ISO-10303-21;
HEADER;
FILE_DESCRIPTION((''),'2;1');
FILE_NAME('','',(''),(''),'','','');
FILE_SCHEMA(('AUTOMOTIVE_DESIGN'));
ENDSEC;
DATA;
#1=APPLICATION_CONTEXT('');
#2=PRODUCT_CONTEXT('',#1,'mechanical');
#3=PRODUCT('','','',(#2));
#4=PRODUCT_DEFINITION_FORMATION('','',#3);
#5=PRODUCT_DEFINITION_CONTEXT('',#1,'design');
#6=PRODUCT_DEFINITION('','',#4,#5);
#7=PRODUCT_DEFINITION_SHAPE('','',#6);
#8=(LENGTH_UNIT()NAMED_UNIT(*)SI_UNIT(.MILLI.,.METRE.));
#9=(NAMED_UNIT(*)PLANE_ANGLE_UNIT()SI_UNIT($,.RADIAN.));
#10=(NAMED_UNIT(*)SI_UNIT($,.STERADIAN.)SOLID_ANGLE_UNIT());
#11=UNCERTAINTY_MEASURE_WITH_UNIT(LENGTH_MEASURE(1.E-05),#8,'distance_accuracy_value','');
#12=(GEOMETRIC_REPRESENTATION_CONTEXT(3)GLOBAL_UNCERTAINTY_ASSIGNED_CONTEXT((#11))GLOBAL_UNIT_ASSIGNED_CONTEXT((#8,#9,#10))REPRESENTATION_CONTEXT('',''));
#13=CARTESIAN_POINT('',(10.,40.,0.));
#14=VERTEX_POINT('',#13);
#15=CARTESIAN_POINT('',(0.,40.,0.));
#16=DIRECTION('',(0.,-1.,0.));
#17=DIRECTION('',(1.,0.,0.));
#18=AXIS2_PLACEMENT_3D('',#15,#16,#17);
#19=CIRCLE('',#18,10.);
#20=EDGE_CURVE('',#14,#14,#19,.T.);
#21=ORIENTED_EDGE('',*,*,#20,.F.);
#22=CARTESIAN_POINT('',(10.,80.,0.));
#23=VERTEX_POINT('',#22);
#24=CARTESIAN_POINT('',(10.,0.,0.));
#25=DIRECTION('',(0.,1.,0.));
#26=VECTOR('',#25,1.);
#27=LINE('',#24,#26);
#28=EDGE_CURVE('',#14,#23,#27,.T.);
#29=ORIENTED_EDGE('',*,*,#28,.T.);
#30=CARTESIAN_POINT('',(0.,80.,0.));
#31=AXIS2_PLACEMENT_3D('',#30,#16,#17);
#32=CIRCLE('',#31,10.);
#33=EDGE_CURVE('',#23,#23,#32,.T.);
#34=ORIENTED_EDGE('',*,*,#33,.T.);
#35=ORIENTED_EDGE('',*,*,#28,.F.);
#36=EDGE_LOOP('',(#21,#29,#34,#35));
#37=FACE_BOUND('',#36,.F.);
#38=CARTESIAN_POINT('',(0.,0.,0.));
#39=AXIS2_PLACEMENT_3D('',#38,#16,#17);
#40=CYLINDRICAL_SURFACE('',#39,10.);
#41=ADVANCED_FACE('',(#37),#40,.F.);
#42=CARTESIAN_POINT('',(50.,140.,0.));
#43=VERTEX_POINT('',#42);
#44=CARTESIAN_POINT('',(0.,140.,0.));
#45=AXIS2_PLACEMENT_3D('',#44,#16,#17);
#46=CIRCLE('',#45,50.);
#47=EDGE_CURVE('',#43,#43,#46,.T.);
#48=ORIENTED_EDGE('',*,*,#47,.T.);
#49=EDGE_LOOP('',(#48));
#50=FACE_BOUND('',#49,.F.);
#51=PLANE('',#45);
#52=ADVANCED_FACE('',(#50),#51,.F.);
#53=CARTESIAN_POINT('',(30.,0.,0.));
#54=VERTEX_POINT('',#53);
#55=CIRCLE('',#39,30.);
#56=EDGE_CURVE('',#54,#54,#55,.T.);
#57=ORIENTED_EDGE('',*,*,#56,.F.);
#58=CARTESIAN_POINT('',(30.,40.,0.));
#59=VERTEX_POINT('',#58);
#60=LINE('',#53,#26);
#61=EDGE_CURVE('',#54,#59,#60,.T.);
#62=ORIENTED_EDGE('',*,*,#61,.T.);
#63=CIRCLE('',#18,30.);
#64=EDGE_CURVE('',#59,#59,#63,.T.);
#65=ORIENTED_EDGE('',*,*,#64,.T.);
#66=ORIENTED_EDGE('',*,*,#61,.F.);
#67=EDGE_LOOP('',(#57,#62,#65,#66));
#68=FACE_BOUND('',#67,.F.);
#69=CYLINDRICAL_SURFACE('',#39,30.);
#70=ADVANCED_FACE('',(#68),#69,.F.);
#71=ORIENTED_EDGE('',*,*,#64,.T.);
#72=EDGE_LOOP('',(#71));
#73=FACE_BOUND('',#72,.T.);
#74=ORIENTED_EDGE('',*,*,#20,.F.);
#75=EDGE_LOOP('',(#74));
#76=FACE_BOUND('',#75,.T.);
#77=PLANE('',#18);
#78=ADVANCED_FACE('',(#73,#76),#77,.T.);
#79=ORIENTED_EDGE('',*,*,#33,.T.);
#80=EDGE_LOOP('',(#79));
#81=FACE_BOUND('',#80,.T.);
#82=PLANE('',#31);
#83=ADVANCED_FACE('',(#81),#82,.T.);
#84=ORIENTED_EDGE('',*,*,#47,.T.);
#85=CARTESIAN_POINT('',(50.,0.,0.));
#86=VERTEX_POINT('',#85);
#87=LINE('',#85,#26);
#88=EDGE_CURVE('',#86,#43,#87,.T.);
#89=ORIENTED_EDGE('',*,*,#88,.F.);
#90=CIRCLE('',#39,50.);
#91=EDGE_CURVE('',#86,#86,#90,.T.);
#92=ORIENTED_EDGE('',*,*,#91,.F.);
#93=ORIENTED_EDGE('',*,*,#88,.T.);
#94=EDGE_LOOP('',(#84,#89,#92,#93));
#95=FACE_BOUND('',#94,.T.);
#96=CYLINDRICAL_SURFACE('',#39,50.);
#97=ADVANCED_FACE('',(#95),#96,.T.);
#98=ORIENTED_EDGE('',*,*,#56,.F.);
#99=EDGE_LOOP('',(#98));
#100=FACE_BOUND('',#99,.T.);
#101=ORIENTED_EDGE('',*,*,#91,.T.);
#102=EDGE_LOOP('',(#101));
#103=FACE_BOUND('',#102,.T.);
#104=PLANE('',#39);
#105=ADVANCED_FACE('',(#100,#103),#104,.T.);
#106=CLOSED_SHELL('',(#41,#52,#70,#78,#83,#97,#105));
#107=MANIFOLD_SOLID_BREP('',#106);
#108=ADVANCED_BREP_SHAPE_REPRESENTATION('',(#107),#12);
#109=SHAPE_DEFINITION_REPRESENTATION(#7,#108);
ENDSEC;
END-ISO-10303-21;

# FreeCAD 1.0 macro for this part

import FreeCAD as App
import Part
import Sketcher
from FreeCAD import Vector

doc = App.newDocument("Part")
body = doc.addObject("PartDesign::Body", "Body")

# Sketch on XZ plane
sketch1 = body.newObject("Sketcher::SketchObject", "Sketch")
sketch1.AttachmentSupport = (doc.getObject("XZ_Plane"), [""])
sketch1.MapMode = "FlatFace"
sketch1.addGeometry(Part.Circle(Vector(0, 0, 0), Vector(0, 0, 1), 50), False)
sketch1.addConstraint(Sketcher.Constraint("Coincident", 0, 3, -1, 1))
sketch1.addConstraint(Sketcher.Constraint("Diameter", 0, 100.0))
pad1 = body.newObject("PartDesign::Pad", "Pad")
pad1.Profile = sketch1
pad1.Length = 140
pad1.Reversed = True

# Sketch on XZ plane
sketch2 = body.newObject("Sketcher::SketchObject", "Sketch001")
sketch2.AttachmentSupport = (doc.getObject("XZ_Plane"), [""])
sketch2.MapMode = "FlatFace"
sketch2.addGeometry(Part.Circle(Vector(0, 0, 0), Vector(0, 0, 1), 30), False)
sketch2.addConstraint(Sketcher.Constraint("Coincident", 0, 3, -1, 1))
sketch2.addConstraint(Sketcher.Constraint("Diameter", 0, 60.0))
pocket1 = body.newObject("PartDesign::Pocket", "Pocket")
pocket1.Profile = sketch2
pocket1.Length = 40

# Sketch on XZ plane
sketch3 = body.newObject("Sketcher::SketchObject", "Sketch002")
sketch3.AttachmentSupport = (doc.getObject("XZ_Plane"), [""])
sketch3.MapMode = "FlatFace"
sketch3.addGeometry(Part.Circle(Vector(0, 0, 0), Vector(0, 0, 1), 10), False)
sketch3.addConstraint(Sketcher.Constraint("Coincident", 0, 3, -1, 1))
sketch3.addConstraint(Sketcher.Constraint("Diameter", 0, 20.0))
pocket2 = body.newObject("PartDesign::Pocket", "Pocket001")
pocket2.Profile = sketch3
pocket2.Length = 80

doc.recompute()
